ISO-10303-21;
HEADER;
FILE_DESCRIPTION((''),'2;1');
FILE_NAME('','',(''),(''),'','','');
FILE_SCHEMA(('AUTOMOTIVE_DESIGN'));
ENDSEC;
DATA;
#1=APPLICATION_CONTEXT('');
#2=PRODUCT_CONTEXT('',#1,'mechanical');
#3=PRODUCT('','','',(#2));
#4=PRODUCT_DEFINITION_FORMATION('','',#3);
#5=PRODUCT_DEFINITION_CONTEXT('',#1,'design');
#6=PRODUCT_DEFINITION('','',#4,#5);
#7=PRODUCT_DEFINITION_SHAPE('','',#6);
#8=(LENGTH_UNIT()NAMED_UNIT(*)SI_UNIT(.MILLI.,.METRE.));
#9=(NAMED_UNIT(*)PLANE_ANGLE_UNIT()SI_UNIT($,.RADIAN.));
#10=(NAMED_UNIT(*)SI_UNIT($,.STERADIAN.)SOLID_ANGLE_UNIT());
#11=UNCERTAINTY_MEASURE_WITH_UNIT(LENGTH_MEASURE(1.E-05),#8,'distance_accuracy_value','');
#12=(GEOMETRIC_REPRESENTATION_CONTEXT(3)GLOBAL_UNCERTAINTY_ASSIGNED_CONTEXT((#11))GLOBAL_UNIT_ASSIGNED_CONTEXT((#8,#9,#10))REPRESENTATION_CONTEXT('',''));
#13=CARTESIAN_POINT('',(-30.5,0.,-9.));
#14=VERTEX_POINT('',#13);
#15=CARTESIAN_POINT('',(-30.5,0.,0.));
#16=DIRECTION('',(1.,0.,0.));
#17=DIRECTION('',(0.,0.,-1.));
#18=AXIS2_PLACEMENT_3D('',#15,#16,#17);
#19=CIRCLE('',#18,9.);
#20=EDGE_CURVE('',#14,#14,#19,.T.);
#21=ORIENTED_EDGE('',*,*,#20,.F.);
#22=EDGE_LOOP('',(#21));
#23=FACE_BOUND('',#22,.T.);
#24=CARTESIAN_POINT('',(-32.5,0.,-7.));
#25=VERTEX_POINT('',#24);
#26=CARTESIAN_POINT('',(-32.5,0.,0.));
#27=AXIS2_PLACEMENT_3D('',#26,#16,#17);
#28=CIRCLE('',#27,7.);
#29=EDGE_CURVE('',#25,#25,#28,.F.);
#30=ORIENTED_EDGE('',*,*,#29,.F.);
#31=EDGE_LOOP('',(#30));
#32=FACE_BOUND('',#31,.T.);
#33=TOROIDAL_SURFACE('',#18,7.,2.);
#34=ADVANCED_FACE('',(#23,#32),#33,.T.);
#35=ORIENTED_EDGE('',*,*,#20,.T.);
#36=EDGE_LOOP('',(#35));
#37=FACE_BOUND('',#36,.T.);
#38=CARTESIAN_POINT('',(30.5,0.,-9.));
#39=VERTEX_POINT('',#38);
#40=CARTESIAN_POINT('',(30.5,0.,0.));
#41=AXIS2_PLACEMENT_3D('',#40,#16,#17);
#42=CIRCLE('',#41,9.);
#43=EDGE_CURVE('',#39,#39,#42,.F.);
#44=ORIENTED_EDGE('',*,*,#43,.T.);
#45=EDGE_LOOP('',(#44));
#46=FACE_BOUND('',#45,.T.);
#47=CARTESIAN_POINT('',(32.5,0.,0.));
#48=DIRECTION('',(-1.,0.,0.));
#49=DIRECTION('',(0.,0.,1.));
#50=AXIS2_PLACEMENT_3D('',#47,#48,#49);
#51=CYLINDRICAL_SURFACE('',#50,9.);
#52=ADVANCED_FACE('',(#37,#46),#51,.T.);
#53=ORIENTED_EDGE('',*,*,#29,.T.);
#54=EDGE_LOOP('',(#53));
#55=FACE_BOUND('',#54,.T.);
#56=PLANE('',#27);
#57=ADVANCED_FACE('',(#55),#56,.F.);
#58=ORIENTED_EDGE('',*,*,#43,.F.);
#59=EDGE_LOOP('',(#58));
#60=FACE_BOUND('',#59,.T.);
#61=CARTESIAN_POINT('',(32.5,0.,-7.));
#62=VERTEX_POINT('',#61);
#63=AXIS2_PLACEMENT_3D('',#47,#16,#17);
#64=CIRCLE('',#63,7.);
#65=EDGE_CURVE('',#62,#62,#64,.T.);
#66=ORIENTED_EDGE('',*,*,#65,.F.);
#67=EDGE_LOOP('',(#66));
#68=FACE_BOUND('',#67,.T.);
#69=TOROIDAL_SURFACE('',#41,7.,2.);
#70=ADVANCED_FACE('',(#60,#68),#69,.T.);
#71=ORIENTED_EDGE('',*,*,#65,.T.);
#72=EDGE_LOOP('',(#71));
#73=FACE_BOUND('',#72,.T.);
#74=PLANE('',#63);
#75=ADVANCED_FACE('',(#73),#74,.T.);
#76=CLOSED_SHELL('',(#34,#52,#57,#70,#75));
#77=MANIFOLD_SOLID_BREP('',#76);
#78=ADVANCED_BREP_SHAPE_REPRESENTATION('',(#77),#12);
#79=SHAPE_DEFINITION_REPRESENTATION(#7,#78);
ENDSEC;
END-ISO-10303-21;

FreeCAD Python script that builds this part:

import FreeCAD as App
import Part
import Sketcher

V = App.Vector
Q = App.Units.Quantity


def edges_at(feature, points):
    """Names of the edges that pass closest to the given points."""
    edges = feature.Shape.Edges
    near = lambda p: min(range(len(edges)), key=lambda i: edges[i].distToShape(Part.Vertex(*p))[0])
    return sorted({f"Edge{near(p) + 1}" for p in points})

doc = App.newDocument("Part")
body = doc.addObject("PartDesign::Body", "Body")

# Sketch on YZ plane
sketch1 = body.newObject("Sketcher::SketchObject", "Sketch")
sketch1.AttachmentSupport = (doc.getObject("YZ_Plane"), [""])
sketch1.MapMode = "FlatFace"
sketch1.addGeometry(Part.Circle(V(0, 0, 0), V(0, 0, 1), 9), False)
sketch1.addConstraint([
    Sketcher.Constraint("Coincident", 0, 3, -1, 1),
    Sketcher.Constraint("Diameter", 0, Q("18 mm")),
])
pad1 = body.newObject("PartDesign::Pad", "Pad")
pad1.Profile = sketch1
pad1.Length = 65
pad1.Midplane = True
doc.recompute()

fillet = body.newObject("PartDesign::Fillet", "Fillet")
fillet.Base = (pad1, edges_at(pad1, [(-32.5, 0, 9), (32.5, 0, 9)]))
fillet.Radius = 2

doc.recompute()
